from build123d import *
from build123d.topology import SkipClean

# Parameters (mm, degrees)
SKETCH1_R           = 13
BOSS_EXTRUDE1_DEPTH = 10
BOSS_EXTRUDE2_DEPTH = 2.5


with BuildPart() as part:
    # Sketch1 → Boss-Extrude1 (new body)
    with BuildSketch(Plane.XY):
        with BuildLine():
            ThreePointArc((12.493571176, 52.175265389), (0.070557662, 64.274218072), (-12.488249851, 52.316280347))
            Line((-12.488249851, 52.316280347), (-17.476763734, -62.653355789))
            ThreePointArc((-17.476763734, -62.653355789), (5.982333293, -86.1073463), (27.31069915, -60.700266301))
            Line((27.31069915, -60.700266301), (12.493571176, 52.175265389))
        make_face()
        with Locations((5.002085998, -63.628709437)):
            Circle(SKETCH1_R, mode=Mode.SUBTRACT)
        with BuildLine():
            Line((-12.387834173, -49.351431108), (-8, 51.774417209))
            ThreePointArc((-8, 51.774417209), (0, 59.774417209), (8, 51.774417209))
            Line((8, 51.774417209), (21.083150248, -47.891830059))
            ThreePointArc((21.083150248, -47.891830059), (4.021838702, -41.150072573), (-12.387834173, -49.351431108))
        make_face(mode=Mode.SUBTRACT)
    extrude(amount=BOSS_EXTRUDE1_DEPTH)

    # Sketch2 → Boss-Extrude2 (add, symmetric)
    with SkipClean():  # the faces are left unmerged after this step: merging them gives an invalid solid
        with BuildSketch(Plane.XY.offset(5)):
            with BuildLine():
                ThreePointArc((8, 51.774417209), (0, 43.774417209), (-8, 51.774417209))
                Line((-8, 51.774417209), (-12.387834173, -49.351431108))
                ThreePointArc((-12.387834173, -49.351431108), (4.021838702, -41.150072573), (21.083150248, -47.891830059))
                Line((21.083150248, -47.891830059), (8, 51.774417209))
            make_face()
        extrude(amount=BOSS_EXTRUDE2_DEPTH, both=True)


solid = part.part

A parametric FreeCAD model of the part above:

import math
import FreeCAD as App
import Part
import Sketcher

V = App.Vector
Q = App.Units.Quantity

doc = App.newDocument("Part")
body = doc.addObject("PartDesign::Body", "Body")

sketch1 = doc.addObject("Sketcher::SketchObject", "Sketch")
body.addObject(sketch1)
sketch1.AttachmentSupport = (doc.XY_Plane, [""])
sketch1.MapMode = "FlatFace"
sketch1.addGeometry(Part.ArcOfCircle(Part.Circle(V(0, 52, 0), V(0, 0, 1), 12), math.radians(2), math.radians(178)), False)
sketch1.addGeometry(Part.LineSegment(V(-12, 52, 0), V(-17, -63, 0)), False)
sketch1.addGeometry(Part.ArcOfCircle(Part.Circle(V(5, -64, 0), V(0, 0, 1), 22), math.radians(178), math.radians(367)), False)
sketch1.addGeometry(Part.LineSegment(V(27, -61, 0), V(12, 52, 0)), False)
sketch1.addGeometry(Part.Circle(V(5, -64, 0), V(0, 0, 1), 13), False)
sketch1.addGeometry(Part.ArcOfCircle(Part.Circle(V(5, -64, 0), V(0, 0, 1), 22), math.radians(44), math.radians(141)), False)
sketch1.addGeometry(Part.LineSegment(V(-12, -49, 0), V(-8, 52, 0)), False)
sketch1.addGeometry(Part.ArcOfCircle(Part.Circle(V(0, 52, 0), V(0, 0, 1), 8), math.radians(0), math.radians(180)), False)
sketch1.addGeometry(Part.LineSegment(V(8, 52, 0), V(21, -48, 0)), False)
sketch1.addConstraint(Sketcher.Constraint("Tangent", 0, 2, 1, 1))
sketch1.addConstraint(Sketcher.Constraint("Tangent", 1, 2, 2, 1))
sketch1.addConstraint(Sketcher.Constraint("Tangent", 2, 2, 3, 1))
sketch1.addConstraint(Sketcher.Constraint("Coincident", 3, 2, 0, 1))
sketch1.addConstraint(Sketcher.Constraint("Coincident", 5, 2, 6, 1))
sketch1.addConstraint(Sketcher.Constraint("Coincident", 6, 2, 7, 2))
sketch1.addConstraint(Sketcher.Constraint("Coincident", 7, 1, 8, 1))
sketch1.addConstraint(Sketcher.Constraint("Coincident", 8, 2, 5, 1))
sketch1.addConstraint(Sketcher.Constraint("Coincident", 4, 3, 2, 3))
sketch1.addConstraint(Sketcher.Constraint("Coincident", 5, 3, 2, 3))
sketch1.addConstraint(Sketcher.Constraint("Coincident", 7, 3, 0, 3))
sketch1.addConstraint(Sketcher.Constraint("Equal", 2, 5))
sketch1.addConstraint(Sketcher.Constraint("Symmetric", 6, 2, 7, 1, -2))
sketch1.addConstraint(Sketcher.Constraint("Parallel", 1, 6))
sketch1.addConstraint(Sketcher.Constraint("Parallel", 3, 8))
sketch1.addConstraint(Sketcher.Constraint("Horizontal", 7, 3, 6, 2))
sketch1.addConstraint(Sketcher.Constraint("Diameter", 4, Q("26 mm")))
sketch1.addConstraint(Sketcher.Constraint("Radius", 7, Q("8 mm")))
sketch1.addConstraint(Sketcher.Constraint("Radius", 0, Q("12.5 mm")))
sketch1.addConstraint(Sketcher.Constraint("Radius", 2, Q("22.5 mm")))
sketch1.addConstraint(Sketcher.Constraint("DistanceX", -1, 1, 2, 2, Q("27.310699 mm")))
sketch1.addConstraint(Sketcher.Constraint("DistanceY", 5, 2, 8, 2, Q("1.459601 mm")))
sketch1.addConstraint(Sketcher.Constraint("Distance", 1, Q("115.077811 mm")))
sketch1.addConstraint(Sketcher.Constraint("DistanceY", 2, 3, -1, 1, Q("63.628709 mm")))
pad1 = doc.addObject("PartDesign::Pad", "Pad")
body.addObject(pad1)
pad1.Profile = sketch1
pad1.Length = 10

sketch2 = doc.addObject("Sketcher::SketchObject", "Sketch001")
body.addObject(sketch2)
sketch2.AttachmentSupport = (doc.XY_Plane, [""])
sketch2.MapMode = "FlatFace"
sketch2.AttachmentOffset = App.Placement(V(0, 0, 5), App.Rotation())
sketch2.addGeometry(Part.ArcOfCircle(Part.Circle(V(0, 52, 0), V(0, 0, 1), 8), math.radians(180), math.radians(360)), False)
sketch2.addGeometry(Part.LineSegment(V(-8, 52, 0), V(-12, -49, 0)), False)
sketch2.addGeometry(Part.ArcOfCircle(Part.Circle(V(5, -64, 0), V(0, 0, 1), 22), math.radians(44), math.radians(141)), False)
sketch2.addGeometry(Part.LineSegment(V(21, -48, 0), V(8, 52, 0)), False)
sketch2.addConstraint(Sketcher.Constraint("Coincident", 0, 1, 1, 1))
sketch2.addConstraint(Sketcher.Constraint("Coincident", 1, 2, 2, 2))
sketch2.addConstraint(Sketcher.Constraint("Coincident", 2, 1, 3, 1))
sketch2.addConstraint(Sketcher.Constraint("Coincident", 3, 2, 0, 2))
sketch2.addConstraint(Sketcher.Constraint("Symmetric", 0, 1, 3, 2, -2))
sketch2.addConstraint(Sketcher.Constraint("Radius", 0, Q("8 mm")))
sketch2.addConstraint(Sketcher.Constraint("Radius", 2, Q("22.5 mm")))
sketch2.addConstraint(Sketcher.Constraint("DistanceY", 1, 2, 2, 1, Q("1.459601 mm")))
sketch2.addConstraint(Sketcher.Constraint("Distance", 3, Q("100.52129 mm")))
sketch2.addConstraint(Sketcher.Constraint("DistanceY", 2, 3, -1, 1, Q("63.628709 mm")))
sketch2.addConstraint(Sketcher.Constraint("DistanceY", 1, 2, -1, 1, Q("49.351431 mm")))
sketch2.addConstraint(Sketcher.Constraint("DistanceX", -1, 1, 2, 1, Q("21.08315 mm")))
sketch2.addConstraint(Sketcher.Constraint("DistanceY", 1, 2, 0, 3, Q("101.125848 mm")))
pad2 = doc.addObject("PartDesign::Pad", "Pad001")
body.addObject(pad2)
pad2.Profile = sketch2
pad2.Length = 5
pad2.Midplane = True

doc.recompute()
